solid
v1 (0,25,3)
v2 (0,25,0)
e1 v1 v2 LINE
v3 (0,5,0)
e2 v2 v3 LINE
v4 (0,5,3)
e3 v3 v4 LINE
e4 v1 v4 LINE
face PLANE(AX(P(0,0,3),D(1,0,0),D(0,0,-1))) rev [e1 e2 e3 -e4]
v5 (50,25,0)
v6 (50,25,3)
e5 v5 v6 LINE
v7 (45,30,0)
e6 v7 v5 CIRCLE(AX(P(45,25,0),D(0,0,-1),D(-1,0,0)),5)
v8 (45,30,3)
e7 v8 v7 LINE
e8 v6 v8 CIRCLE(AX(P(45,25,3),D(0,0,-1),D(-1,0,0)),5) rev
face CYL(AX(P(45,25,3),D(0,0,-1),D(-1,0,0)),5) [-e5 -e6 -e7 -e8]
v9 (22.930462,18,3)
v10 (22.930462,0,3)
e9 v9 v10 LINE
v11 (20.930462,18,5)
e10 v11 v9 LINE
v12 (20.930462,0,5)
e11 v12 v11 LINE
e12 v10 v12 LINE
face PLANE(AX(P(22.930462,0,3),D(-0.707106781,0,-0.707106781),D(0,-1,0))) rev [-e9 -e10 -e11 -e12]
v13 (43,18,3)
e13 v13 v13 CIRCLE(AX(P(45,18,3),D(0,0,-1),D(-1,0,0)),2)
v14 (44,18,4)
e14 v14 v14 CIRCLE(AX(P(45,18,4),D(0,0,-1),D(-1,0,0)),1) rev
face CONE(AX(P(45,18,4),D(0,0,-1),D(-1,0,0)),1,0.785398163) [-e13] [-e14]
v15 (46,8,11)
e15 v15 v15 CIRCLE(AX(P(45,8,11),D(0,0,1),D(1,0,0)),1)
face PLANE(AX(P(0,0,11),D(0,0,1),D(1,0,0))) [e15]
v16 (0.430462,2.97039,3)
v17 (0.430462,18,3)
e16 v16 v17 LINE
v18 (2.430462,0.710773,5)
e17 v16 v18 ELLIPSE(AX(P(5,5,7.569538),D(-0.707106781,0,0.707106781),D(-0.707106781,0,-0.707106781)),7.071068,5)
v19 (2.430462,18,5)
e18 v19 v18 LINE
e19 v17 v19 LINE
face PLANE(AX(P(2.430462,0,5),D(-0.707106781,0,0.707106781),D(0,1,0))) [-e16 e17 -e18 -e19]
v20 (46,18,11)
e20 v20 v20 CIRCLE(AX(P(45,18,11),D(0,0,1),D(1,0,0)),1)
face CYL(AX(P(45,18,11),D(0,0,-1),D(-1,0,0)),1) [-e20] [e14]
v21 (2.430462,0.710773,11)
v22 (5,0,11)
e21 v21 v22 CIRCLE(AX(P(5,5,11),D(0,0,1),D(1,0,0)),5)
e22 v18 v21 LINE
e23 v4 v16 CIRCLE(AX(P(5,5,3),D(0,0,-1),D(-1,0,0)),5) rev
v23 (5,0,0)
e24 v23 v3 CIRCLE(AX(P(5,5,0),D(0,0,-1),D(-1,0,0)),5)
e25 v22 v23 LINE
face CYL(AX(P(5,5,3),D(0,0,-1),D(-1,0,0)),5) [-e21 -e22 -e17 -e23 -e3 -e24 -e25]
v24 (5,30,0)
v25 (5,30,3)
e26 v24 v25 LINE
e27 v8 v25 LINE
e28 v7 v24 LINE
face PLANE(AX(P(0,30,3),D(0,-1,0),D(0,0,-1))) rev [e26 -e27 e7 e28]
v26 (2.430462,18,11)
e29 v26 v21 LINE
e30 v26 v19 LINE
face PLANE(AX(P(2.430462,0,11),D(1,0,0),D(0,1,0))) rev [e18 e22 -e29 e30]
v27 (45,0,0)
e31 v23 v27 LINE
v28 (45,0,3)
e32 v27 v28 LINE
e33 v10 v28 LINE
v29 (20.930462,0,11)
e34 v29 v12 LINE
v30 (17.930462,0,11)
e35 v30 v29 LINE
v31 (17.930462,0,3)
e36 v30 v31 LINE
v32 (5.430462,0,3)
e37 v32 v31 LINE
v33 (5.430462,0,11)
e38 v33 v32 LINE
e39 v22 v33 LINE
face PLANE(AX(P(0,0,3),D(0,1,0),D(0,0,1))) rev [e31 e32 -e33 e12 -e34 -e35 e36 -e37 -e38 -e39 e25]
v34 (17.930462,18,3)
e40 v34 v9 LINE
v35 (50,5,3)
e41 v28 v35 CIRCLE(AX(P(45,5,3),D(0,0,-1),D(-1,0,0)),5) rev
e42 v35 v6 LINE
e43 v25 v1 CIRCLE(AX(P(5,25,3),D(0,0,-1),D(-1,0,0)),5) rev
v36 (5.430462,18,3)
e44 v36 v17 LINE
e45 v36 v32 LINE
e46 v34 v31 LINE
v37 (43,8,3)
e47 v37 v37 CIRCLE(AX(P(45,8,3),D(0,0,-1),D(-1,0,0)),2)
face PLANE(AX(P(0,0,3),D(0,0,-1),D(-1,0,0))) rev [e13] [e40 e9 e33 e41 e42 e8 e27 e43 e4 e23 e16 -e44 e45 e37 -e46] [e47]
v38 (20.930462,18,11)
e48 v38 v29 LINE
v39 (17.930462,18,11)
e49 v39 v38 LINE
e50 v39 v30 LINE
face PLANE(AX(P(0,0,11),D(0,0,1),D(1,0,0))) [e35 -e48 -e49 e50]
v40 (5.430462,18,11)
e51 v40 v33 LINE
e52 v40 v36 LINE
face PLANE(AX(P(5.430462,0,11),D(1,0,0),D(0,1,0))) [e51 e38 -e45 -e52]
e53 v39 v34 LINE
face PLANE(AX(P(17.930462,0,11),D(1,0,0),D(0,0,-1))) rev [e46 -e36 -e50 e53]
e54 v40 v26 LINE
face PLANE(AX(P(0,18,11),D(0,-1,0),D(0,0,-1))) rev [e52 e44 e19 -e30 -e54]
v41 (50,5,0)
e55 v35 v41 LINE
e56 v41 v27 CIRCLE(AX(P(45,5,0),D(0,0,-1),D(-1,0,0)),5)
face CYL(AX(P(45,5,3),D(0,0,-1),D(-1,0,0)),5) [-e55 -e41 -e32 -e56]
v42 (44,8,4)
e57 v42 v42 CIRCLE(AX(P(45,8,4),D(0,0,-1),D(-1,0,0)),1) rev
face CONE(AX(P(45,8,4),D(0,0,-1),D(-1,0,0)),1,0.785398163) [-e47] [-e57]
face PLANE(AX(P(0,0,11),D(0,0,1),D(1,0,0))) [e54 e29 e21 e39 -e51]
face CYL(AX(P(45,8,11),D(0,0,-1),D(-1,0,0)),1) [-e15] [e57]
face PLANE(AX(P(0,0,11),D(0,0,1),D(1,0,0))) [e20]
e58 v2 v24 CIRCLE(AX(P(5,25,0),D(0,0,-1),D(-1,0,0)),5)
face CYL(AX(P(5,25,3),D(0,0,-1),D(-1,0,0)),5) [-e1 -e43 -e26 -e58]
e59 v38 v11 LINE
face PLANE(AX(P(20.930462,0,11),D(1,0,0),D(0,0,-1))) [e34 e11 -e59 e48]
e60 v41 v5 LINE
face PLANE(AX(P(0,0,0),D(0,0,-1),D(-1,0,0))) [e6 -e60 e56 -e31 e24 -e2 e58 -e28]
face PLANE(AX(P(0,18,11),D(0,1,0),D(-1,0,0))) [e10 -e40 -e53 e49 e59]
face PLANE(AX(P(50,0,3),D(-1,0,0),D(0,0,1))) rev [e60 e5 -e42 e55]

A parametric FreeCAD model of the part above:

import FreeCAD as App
import Part
import Sketcher
from FreeCAD import Vector


def edges_at(feature, points):
    """Names of the edges that pass closest to the given points."""
    edges = feature.Shape.Edges
    near = lambda p: min(range(len(edges)), key=lambda i: edges[i].distToShape(Part.Vertex(*p))[0])
    return sorted({f"Edge{near(p) + 1}" for p in points})

doc = App.newDocument("Part")
body = doc.addObject("PartDesign::Body", "Body")

sketch1 = body.newObject("Sketcher::SketchObject", "Sketch")
sketch1.AttachmentSupport = (doc.getObject("XY_Plane"), [""])
sketch1.MapMode = "FlatFace"
sketch1.addGeometry(Part.LineSegment(Vector(0, 30, 0), Vector(0, 0, 0)), False)
sketch1.addGeometry(Part.LineSegment(Vector(0, 0, 0), Vector(50, 0, 0)), False)
sketch1.addGeometry(Part.LineSegment(Vector(50, 0, 0), Vector(50, 30, 0)), False)
sketch1.addGeometry(Part.LineSegment(Vector(50, 30, 0), Vector(0, 30, 0)), False)
sketch1.addConstraint(Sketcher.Constraint("Coincident", 0, 2, 1, 1))
sketch1.addConstraint(Sketcher.Constraint("Coincident", 1, 2, 2, 1))
sketch1.addConstraint(Sketcher.Constraint("Coincident", 2, 2, 3, 1))
sketch1.addConstraint(Sketcher.Constraint("Coincident", 3, 2, 0, 1))
sketch1.addConstraint(Sketcher.Constraint("Vertical", 0))
sketch1.addConstraint(Sketcher.Constraint("Horizontal", 1))
sketch1.addConstraint(Sketcher.Constraint("Vertical", 2))
sketch1.addConstraint(Sketcher.Constraint("Horizontal", 3))
sketch1.addConstraint(Sketcher.Constraint("Coincident", 0, 2, -1, 1))
sketch1.addConstraint(Sketcher.Constraint("DistanceX", 1, 1, 1, 2, 50.0))
sketch1.addConstraint(Sketcher.Constraint("DistanceY", 0, 2, 0, 1, 30.0))
pad1 = body.newObject("PartDesign::Pad", "Pad")
pad1.Profile = sketch1
pad1.Length = 3

sketch2 = body.newObject("Sketcher::SketchObject", "Sketch001")
sketch2.AttachmentSupport = (doc.getObject("XY_Plane"), [""])
sketch2.MapMode = "FlatFace"
sketch2.AttachmentOffset = App.Placement(Vector(0, 0, 3), App.Rotation())
sketch2.addGeometry(Part.LineSegment(Vector(2.430462, 18, 0), Vector(2.430462, 0, 0)), False)
sketch2.addGeometry(Part.LineSegment(Vector(2.430462, 0, 0), Vector(5.430462, 0, 0)), False)
sketch2.addGeometry(Part.LineSegment(Vector(5.430462, 0, 0), Vector(5.430462, 18, 0)), False)
sketch2.addGeometry(Part.LineSegment(Vector(5.430462, 18, 0), Vector(2.430462, 18, 0)), False)
sketch2.addGeometry(Part.LineSegment(Vector(17.930462, 18, 0), Vector(17.930462, 0, 0)), False)
sketch2.addGeometry(Part.LineSegment(Vector(17.930462, 0, 0), Vector(20.930462, 0, 0)), False)
sketch2.addGeometry(Part.LineSegment(Vector(20.930462, 0, 0), Vector(20.930462, 18, 0)), False)
sketch2.addGeometry(Part.LineSegment(Vector(20.930462, 18, 0), Vector(17.930462, 18, 0)), False)
sketch2.addGeometry(Part.Circle(Vector(45, 18, 0), Vector(0, 0, 1), 1), False)
sketch2.addGeometry(Part.Circle(Vector(45, 8, 0), Vector(0, 0, 1), 1), False)
sketch2.addConstraint(Sketcher.Constraint("Coincident", 0, 2, 1, 1))
sketch2.addConstraint(Sketcher.Constraint("Coincident", 1, 2, 2, 1))
sketch2.addConstraint(Sketcher.Constraint("Coincident", 2, 2, 3, 1))
sketch2.addConstraint(Sketcher.Constraint("Coincident", 3, 2, 0, 1))
sketch2.addConstraint(Sketcher.Constraint("Coincident", 4, 2, 5, 1))
sketch2.addConstraint(Sketcher.Constraint("Coincident", 5, 2, 6, 1))
sketch2.addConstraint(Sketcher.Constraint("Coincident", 6, 2, 7, 1))
sketch2.addConstraint(Sketcher.Constraint("Coincident", 7, 2, 4, 1))
sketch2.addConstraint(Sketcher.Constraint("Vertical", 0))
sketch2.addConstraint(Sketcher.Constraint("Horizontal", 1))
sketch2.addConstraint(Sketcher.Constraint("Vertical", 2))
sketch2.addConstraint(Sketcher.Constraint("Horizontal", 3))
sketch2.addConstraint(Sketcher.Constraint("Vertical", 4))
sketch2.addConstraint(Sketcher.Constraint("Horizontal", 5))
sketch2.addConstraint(Sketcher.Constraint("Vertical", 6))
sketch2.addConstraint(Sketcher.Constraint("Horizontal", 7))
sketch2.addConstraint(Sketcher.Constraint("Equal", 8, 9))
sketch2.addConstraint(Sketcher.Constraint("PointOnObject", 0, 2, -1))
sketch2.addConstraint(Sketcher.Constraint("PointOnObject", 4, 2, -1))
sketch2.addConstraint(Sketcher.Constraint("Horizontal", 8, 3, 2, 2))
sketch2.addConstraint(Sketcher.Constraint("Horizontal", 3, 2, 6, 2))
sketch2.addConstraint(Sketcher.Constraint("Vertical", 8, 3, 9, 3))
sketch2.addConstraint(Sketcher.Constraint("Equal", 3, 5))
sketch2.addConstraint(Sketcher.Constraint("Diameter", 8, 2.0))
sketch2.addConstraint(Sketcher.Constraint("DistanceX", 1, 1, 1, 2, 3.0))
sketch2.addConstraint(Sketcher.Constraint("DistanceY", 0, 2, 0, 1, 18.0))
sketch2.addConstraint(Sketcher.Constraint("DistanceX", -1, 1, 8, 3, 45.0))
sketch2.addConstraint(Sketcher.Constraint("DistanceY", -1, 1, 9, 3, 8.0))
sketch2.addConstraint(Sketcher.Constraint("DistanceX", 1, 2, 4, 2, 12.5))
sketch2.addConstraint(Sketcher.Constraint("DistanceX", -1, 1, 0, 2, 2.430462))
pad2 = body.newObject("PartDesign::Pad", "Pad001")
pad2.Profile = sketch2
pad2.Length = 8
doc.recompute()

chamfer = body.newObject("PartDesign::Chamfer", "Chamfer")
chamfer.Base = (pad2, edges_at(pad2, [(2.43, 9, 3), (20.93, 9, 3)]))
chamfer.Size = 2
doc.recompute()

fillet = body.newObject("PartDesign::Fillet", "Fillet")
fillet.Base = (chamfer, edges_at(chamfer, [
    (0, 0, 1.5),
    (50, 0, 1.5),
    (50, 30, 1.5),
    (0, 30, 1.5),
]))
fillet.Radius = 5
doc.recompute()

chamfer2 = body.newObject("PartDesign::Chamfer", "Chamfer001")
chamfer2.Base = (fillet, edges_at(fillet, [(44, 18, 3), (44, 8, 3)]))
chamfer2.Size = 1

doc.recompute()
